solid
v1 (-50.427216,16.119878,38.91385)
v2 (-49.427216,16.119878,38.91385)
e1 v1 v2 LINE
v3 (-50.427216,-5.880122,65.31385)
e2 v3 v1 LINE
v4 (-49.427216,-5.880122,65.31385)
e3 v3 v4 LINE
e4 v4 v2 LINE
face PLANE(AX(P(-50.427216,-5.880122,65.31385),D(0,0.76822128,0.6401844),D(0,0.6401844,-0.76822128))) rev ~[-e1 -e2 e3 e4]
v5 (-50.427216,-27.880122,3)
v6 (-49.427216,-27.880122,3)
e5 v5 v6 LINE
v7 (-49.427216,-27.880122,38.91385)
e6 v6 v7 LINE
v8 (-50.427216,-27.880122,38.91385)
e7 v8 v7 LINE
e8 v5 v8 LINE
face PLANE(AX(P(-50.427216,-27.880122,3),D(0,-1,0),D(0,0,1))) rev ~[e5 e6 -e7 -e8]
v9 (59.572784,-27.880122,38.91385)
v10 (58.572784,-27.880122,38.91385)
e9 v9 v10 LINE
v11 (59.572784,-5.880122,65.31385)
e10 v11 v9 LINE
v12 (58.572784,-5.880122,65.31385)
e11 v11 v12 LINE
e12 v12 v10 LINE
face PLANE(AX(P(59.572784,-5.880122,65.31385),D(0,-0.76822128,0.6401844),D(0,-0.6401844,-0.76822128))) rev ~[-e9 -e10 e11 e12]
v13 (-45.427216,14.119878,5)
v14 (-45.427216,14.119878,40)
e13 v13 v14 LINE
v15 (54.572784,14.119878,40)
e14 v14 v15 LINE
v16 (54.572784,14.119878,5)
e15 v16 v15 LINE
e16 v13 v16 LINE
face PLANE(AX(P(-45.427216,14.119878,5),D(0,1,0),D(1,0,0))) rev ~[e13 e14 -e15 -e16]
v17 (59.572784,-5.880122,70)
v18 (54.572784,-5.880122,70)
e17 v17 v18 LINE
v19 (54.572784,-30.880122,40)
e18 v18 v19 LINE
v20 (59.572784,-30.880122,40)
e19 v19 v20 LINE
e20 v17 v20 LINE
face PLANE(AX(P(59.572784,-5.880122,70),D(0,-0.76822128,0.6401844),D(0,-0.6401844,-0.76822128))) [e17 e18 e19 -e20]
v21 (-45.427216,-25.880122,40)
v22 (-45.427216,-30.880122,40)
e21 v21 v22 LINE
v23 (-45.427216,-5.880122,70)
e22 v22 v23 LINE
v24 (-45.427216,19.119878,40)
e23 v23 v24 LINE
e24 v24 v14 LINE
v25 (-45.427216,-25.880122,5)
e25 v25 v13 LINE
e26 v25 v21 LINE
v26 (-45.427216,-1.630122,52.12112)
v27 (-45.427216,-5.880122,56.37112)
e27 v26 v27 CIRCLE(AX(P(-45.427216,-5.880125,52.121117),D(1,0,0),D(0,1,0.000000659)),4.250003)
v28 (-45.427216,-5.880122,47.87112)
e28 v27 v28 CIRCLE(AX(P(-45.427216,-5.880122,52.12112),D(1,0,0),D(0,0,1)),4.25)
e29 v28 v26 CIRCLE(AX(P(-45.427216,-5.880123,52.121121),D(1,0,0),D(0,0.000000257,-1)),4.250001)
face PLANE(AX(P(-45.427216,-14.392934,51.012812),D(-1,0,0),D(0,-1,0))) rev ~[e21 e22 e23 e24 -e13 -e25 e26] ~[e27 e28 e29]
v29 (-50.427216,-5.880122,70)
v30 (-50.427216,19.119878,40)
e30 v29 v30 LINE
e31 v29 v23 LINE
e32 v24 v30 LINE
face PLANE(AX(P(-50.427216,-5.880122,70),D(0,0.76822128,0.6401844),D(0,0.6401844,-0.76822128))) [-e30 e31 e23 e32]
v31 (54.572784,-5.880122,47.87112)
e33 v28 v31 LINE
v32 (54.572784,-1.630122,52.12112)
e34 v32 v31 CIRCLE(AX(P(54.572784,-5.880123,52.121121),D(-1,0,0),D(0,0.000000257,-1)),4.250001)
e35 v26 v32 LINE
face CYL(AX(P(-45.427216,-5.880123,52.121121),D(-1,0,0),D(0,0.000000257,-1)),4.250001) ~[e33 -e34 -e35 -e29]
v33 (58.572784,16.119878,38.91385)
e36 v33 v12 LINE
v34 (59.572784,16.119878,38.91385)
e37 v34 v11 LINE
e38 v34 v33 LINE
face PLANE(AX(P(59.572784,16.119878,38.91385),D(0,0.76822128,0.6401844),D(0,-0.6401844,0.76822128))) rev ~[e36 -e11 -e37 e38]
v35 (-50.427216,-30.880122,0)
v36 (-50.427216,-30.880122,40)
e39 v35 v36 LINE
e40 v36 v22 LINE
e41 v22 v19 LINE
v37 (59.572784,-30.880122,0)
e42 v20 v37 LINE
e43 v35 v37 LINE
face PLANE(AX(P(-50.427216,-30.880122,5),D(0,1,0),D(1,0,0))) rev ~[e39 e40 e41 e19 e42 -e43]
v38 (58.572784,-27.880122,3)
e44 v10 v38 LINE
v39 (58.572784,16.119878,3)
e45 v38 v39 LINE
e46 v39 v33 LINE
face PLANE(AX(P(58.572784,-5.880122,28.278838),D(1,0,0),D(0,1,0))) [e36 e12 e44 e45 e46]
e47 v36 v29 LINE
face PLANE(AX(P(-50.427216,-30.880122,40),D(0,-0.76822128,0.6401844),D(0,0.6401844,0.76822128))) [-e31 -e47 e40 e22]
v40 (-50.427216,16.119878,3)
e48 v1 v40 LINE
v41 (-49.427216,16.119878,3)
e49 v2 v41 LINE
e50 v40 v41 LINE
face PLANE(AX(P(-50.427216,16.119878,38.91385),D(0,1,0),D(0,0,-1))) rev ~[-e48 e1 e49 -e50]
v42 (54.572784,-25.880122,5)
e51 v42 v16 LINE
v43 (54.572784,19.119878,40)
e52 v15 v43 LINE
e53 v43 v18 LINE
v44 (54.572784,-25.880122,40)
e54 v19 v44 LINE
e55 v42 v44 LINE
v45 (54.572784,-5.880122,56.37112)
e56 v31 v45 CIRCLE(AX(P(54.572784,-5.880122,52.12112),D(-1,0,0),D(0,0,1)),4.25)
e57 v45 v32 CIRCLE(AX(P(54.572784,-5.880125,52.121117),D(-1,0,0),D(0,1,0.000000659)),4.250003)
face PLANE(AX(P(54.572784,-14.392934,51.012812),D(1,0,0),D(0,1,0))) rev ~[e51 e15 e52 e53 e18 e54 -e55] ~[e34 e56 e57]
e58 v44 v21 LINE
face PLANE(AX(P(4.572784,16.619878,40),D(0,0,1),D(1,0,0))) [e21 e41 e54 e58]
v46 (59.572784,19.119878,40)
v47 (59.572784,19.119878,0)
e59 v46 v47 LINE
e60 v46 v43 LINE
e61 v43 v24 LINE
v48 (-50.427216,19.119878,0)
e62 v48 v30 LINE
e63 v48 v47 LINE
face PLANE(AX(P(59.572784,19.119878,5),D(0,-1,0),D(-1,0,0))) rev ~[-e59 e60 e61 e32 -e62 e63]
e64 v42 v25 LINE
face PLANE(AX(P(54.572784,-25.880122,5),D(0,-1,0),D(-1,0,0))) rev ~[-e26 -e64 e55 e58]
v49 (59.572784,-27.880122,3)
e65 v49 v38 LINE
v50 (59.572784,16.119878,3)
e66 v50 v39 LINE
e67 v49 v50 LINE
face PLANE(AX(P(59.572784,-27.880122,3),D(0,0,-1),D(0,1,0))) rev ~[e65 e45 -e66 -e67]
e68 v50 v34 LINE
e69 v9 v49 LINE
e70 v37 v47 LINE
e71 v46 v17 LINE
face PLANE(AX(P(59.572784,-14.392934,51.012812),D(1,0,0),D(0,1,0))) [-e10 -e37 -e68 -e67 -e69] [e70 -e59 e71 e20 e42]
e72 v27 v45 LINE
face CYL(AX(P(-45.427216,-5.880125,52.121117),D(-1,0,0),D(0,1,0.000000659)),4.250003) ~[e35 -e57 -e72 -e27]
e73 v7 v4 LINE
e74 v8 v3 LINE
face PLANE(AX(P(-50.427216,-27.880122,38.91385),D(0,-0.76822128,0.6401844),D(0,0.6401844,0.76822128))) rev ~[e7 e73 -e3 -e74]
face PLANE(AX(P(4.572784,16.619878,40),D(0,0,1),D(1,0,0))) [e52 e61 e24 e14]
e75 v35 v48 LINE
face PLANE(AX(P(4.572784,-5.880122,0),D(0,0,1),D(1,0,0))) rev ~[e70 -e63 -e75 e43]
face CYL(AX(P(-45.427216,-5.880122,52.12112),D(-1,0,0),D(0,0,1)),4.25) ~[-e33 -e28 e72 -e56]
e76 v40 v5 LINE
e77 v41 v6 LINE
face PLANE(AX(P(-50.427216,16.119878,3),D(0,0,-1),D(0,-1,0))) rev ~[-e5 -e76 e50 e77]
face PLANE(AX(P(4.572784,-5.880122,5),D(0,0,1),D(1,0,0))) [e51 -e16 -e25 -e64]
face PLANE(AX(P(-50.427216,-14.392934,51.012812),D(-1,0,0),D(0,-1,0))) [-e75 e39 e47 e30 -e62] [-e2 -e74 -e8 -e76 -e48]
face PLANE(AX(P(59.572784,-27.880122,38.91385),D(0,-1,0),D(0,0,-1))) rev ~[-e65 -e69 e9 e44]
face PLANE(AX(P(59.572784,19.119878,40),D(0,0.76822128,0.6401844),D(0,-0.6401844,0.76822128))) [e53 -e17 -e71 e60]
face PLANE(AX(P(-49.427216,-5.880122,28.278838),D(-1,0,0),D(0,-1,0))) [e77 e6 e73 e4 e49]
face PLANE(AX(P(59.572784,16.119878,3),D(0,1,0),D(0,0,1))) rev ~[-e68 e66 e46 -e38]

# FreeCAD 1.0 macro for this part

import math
import FreeCAD as App
import Part
import Sketcher
from FreeCAD import Vector

doc = App.newDocument("Part")
body = doc.addObject("PartDesign::Body", "Body")

# Sketch on XY plane
sketch1 = body.newObject("Sketcher::SketchObject", "Sketch")
sketch1.AttachmentSupport = (doc.getObject("XY_Plane"), [""])
sketch1.MapMode = "FlatFace"
sketch1.addGeometry([
    Part.LineSegment(Vector(-50, 19, 0), Vector(-50, -31, 0)),
    Part.LineSegment(Vector(-50, -31, 0), Vector(60, -31, 0)),
    Part.LineSegment(Vector(60, -31, 0), Vector(60, 19, 0)),
    Part.LineSegment(Vector(60, 19, 0), Vector(-50, 19, 0)),
], False)
sketch1.addConstraint([
    Sketcher.Constraint("Coincident", 0, 2, 1, 1),
    Sketcher.Constraint("Coincident", 1, 2, 2, 1),
    Sketcher.Constraint("Coincident", 2, 2, 3, 1),
    Sketcher.Constraint("Coincident", 3, 2, 0, 1),
    Sketcher.Constraint("Vertical", 0),
    Sketcher.Constraint("Horizontal", 1),
    Sketcher.Constraint("Vertical", 2),
    Sketcher.Constraint("Horizontal", 3),
    Sketcher.Constraint("DistanceX", 1, 1, 1, 2, 110.0),
    Sketcher.Constraint("DistanceY", 0, 2, 0, 1, 50.0),
    Sketcher.Constraint("DistanceY", 0, 2, -1, 1, 30.880122),
    Sketcher.Constraint("DistanceX", 0, 2, -1, 1, 50.427216),
])
pad1 = body.newObject("PartDesign::Pad", "Pad")
pad1.Profile = sketch1
pad1.Length = 5

# Sketch on XY plane
sketch2 = body.newObject("Sketcher::SketchObject", "Sketch001")
sketch2.AttachmentSupport = (doc.getObject("XY_Plane"), [""])
sketch2.MapMode = "FlatFace"
sketch2.AttachmentOffset = App.Placement(Vector(0, 0, 5), App.Rotation())
sketch2.addGeometry([
    Part.LineSegment(Vector(60, 19, 0), Vector(-50, 19, 0)),  # 0
    Part.LineSegment(Vector(-50, 19, 0), Vector(-50, -31, 0)),  # 1
    Part.LineSegment(Vector(-50, -31, 0), Vector(60, -31, 0)),  # 2
    Part.LineSegment(Vector(60, -31, 0), Vector(60, 19, 0)),  # 3
    Part.LineSegment(Vector(-45, -26, 0), Vector(-45, 14, 0)),  # 4
    Part.LineSegment(Vector(-45, 14, 0), Vector(55, 14, 0)),  # 5
    Part.LineSegment(Vector(55, 14, 0), Vector(55, -26, 0)),  # 6
    Part.LineSegment(Vector(55, -26, 0), Vector(-45, -26, 0)),  # 7
], False)
sketch2.addConstraint([
    Sketcher.Constraint("Coincident", 0, 2, 1, 1),
    Sketcher.Constraint("Coincident", 1, 2, 2, 1),
    Sketcher.Constraint("Coincident", 2, 2, 3, 1),
    Sketcher.Constraint("Coincident", 3, 2, 0, 1),
    Sketcher.Constraint("Coincident", 4, 2, 5, 1),
    Sketcher.Constraint("Coincident", 5, 2, 6, 1),
    Sketcher.Constraint("Coincident", 6, 2, 7, 1),
    Sketcher.Constraint("Coincident", 7, 2, 4, 1),
    Sketcher.Constraint("Horizontal", 0),
    Sketcher.Constraint("Vertical", 1),
    Sketcher.Constraint("Horizontal", 2),
    Sketcher.Constraint("Vertical", 3),
    Sketcher.Constraint("Vertical", 4),
    Sketcher.Constraint("Horizontal", 5),
    Sketcher.Constraint("Vertical", 6),
    Sketcher.Constraint("Horizontal", 7),
    Sketcher.Constraint("DistanceX", 0, 2, 0, 1, 110.0),
    Sketcher.Constraint("DistanceX", 5, 1, 5, 2, 100.0),
    Sketcher.Constraint("DistanceY", 1, 2, 1, 1, 50.0),
    Sketcher.Constraint("DistanceY", 4, 1, 4, 2, 40.0),
    Sketcher.Constraint("DistanceX", 0, 2, 4, 2, 5.0),
    Sketcher.Constraint("DistanceY", 4, 2, 0, 2, 5.0),
    Sketcher.Constraint("DistanceY", -1, 1, 0, 2, 19.119878),
    Sketcher.Constraint("DistanceX", 0, 2, -1, 1, 50.427216),
])
pad2 = body.newObject("PartDesign::Pad", "Pad001")
pad2.Profile = sketch2
pad2.Length = 35

# Sketch on YZ plane
sketch3 = body.newObject("Sketcher::SketchObject", "Sketch002")
sketch3.AttachmentSupport = (doc.getObject("YZ_Plane"), [""])
sketch3.MapMode = "FlatFace"
sketch3.AttachmentOffset = App.Placement(Vector(0, 0, -50.427216), App.Rotation())
sketch3.addGeometry([
    Part.LineSegment(Vector(-31, 40, 0), Vector(-6, 70, 0)),
    Part.LineSegment(Vector(-6, 70, 0), Vector(19, 40, 0)),
    Part.LineSegment(Vector(19, 40, 0), Vector(-31, 40, 0)),
], False)
sketch3.addConstraint([
    Sketcher.Constraint("Coincident", 0, 2, 1, 1),
    Sketcher.Constraint("Coincident", 1, 2, 2, 1),
    Sketcher.Constraint("Coincident", 2, 2, 0, 1),
    Sketcher.Constraint("Horizontal", 2),
    Sketcher.Constraint("Equal", 0, 1),
    Sketcher.Constraint("DistanceX", 2, 2, 2, 1, 50.0),
    Sketcher.Constraint("DistanceY", -1, 1, 0, 2, 70.0),
    Sketcher.Constraint("DistanceY", -1, 1, 1, 2, 40.0),
    Sketcher.Constraint("DistanceX", -1, 1, 1, 2, 19.119878),
])
pad3 = body.newObject("PartDesign::Pad", "Pad002")
pad3.Profile = sketch3
pad3.Length = 5

# Sketch on YZ plane
sketch4 = body.newObject("Sketcher::SketchObject", "Sketch003")
sketch4.AttachmentSupport = (doc.getObject("YZ_Plane"), [""])
sketch4.MapMode = "FlatFace"
sketch4.AttachmentOffset = App.Placement(Vector(0, 0, 59.572784), App.Rotation())
sketch4.addGeometry([
    Part.LineSegment(Vector(-31, 40, 0), Vector(19, 40, 0)),
    Part.LineSegment(Vector(19, 40, 0), Vector(-6, 70, 0)),
    Part.LineSegment(Vector(-6, 70, 0), Vector(-31, 40, 0)),
], False)
sketch4.addConstraint([
    Sketcher.Constraint("Coincident", 0, 2, 1, 1),
    Sketcher.Constraint("Coincident", 1, 2, 2, 1),
    Sketcher.Constraint("Coincident", 2, 2, 0, 1),
    Sketcher.Constraint("Horizontal", 0),
    Sketcher.Constraint("Equal", 1, 2),
    Sketcher.Constraint("DistanceX", 0, 1, 0, 2, 50.0),
    Sketcher.Constraint("DistanceY", -1, 1, 0, 2, 40.0),
    Sketcher.Constraint("DistanceY", -1, 1, 1, 2, 70.0),
    Sketcher.Constraint("DistanceX", -1, 1, 0, 2, 19.119878),
])
pad4 = body.newObject("PartDesign::Pad", "Pad003")
pad4.Profile = sketch4
pad4.Length = 5
pad4.Reversed = True

# Sketch on YZ plane
sketch5 = body.newObject("Sketcher::SketchObject", "Sketch004")
sketch5.AttachmentSupport = (doc.getObject("YZ_Plane"), [""])
sketch5.MapMode = "FlatFace"
sketch5.AttachmentOffset = App.Placement(Vector(0, 0, -45.427216), App.Rotation())
sketch5.addGeometry([
    Part.ArcOfCircle(Part.Circle(Vector(-5.9, 52.1, 0), Vector(0, 0, 1), 4.3), math.radians(0), math.radians(90)),
    Part.ArcOfCircle(Part.Circle(Vector(-5.9, 52.1, 0), Vector(0, 0, 1), 4.2), math.radians(90), math.radians(270)),
    Part.ArcOfCircle(Part.Circle(Vector(-5.9, 52.1, 0), Vector(0, 0, 1), 4.3), math.radians(-90), math.radians(0)),
], False)
sketch5.addConstraint([
    Sketcher.Constraint("Tangent", 0, 2, 1, 1),
    Sketcher.Constraint("Tangent", 1, 2, 2, 1),
    Sketcher.Constraint("Tangent", 2, 2, 0, 1),
    Sketcher.Constraint("Horizontal", 1, 3, 2, 2),
    Sketcher.Constraint("Vertical", 2, 3, 0, 2),
    Sketcher.Constraint("Vertical", 0, 2, 1, 2),
    Sketcher.Constraint("Radius", 1, 4.25),
    Sketcher.Constraint("DistanceY", -1, 1, 1, 3, 52.12112),
    Sketcher.Constraint("DistanceX", 0, 3, -1, 1, 5.880125),
])
pad5 = body.newObject("PartDesign::Pad", "Pad004")
pad5.Profile = sketch5
pad5.Length = 101

# Sketch on YZ plane
sketch6 = body.newObject("Sketcher::SketchObject", "Sketch005")
sketch6.AttachmentSupport = (doc.getObject("YZ_Plane"), [""])
sketch6.MapMode = "FlatFace"
sketch6.AttachmentOffset = App.Placement(Vector(0, 0, 59.572784), App.Rotation())
sketch6.addGeometry([
    Part.LineSegment(Vector(-28, 39, 0), Vector(-28, 3, 0)),  # 0
    Part.LineSegment(Vector(-28, 3, 0), Vector(16, 3, 0)),  # 1
    Part.LineSegment(Vector(16, 3, 0), Vector(16, 39, 0)),  # 2
    Part.LineSegment(Vector(16, 39, 0), Vector(-6, 65, 0)),  # 3
    Part.LineSegment(Vector(-6, 65, 0), Vector(-28, 39, 0)),  # 4
], False)
sketch6.addConstraint([
    Sketcher.Constraint("Coincident", 0, 2, 1, 1),
    Sketcher.Constraint("Coincident", 1, 2, 2, 1),
    Sketcher.Constraint("Coincident", 2, 2, 3, 1),
    Sketcher.Constraint("Coincident", 3, 2, 4, 1),
    Sketcher.Constraint("Coincident", 4, 2, 0, 1),
    Sketcher.Constraint("Vertical", 0),
    Sketcher.Constraint("Horizontal", 1),
    Sketcher.Constraint("Vertical", 2),
    Sketcher.Constraint("Horizontal", 2, 2, 4, 2),
    Sketcher.Constraint("Equal", 3, 4),
    Sketcher.Constraint("DistanceX", 1, 1, 1, 2, 44.0),
    Sketcher.Constraint("DistanceY", -1, 1, 0, 2, 3.0),
    Sketcher.Constraint("DistanceY", 2, 2, 3, 2, 26.4),
    Sketcher.Constraint("DistanceY", 0, 2, 0, 1, 35.91385),
    Sketcher.Constraint("DistanceX", 0, 2, -1, 1, 27.880122),
])
pocket1 = body.newObject("PartDesign::Pocket", "Pocket")
pocket1.Profile = sketch6
pocket1.Length = 1

# Sketch on YZ plane
sketch7 = body.newObject("Sketcher::SketchObject", "Sketch006")
sketch7.AttachmentSupport = (doc.getObject("YZ_Plane"), [""])
sketch7.MapMode = "FlatFace"
sketch7.AttachmentOffset = App.Placement(Vector(0, 0, -50.427216), App.Rotation())
sketch7.addGeometry([
    Part.LineSegment(Vector(16, 39, 0), Vector(16, 3, 0)),  # 0
    Part.LineSegment(Vector(16, 3, 0), Vector(-28, 3, 0)),  # 1
    Part.LineSegment(Vector(-28, 3, 0), Vector(-28, 39, 0)),  # 2
    Part.LineSegment(Vector(-28, 39, 0), Vector(-6, 65, 0)),  # 3
    Part.LineSegment(Vector(-6, 65, 0), Vector(16, 39, 0)),  # 4
], False)
sketch7.addConstraint([
    Sketcher.Constraint("Coincident", 0, 2, 1, 1),
    Sketcher.Constraint("Coincident", 1, 2, 2, 1),
    Sketcher.Constraint("Coincident", 2, 2, 3, 1),
    Sketcher.Constraint("Coincident", 3, 2, 4, 1),
    Sketcher.Constraint("Coincident", 4, 2, 0, 1),
    Sketcher.Constraint("Vertical", 0),
    Sketcher.Constraint("Horizontal", 1),
    Sketcher.Constraint("Vertical", 2),
    Sketcher.Constraint("Horizontal", 2, 2, 4, 2),
    Sketcher.Constraint("Equal", 3, 4),
    Sketcher.Constraint("DistanceX", 1, 2, 1, 1, 44.0),
    Sketcher.Constraint("DistanceY", -1, 1, 0, 2, 3.0),
    Sketcher.Constraint("DistanceY", 2, 2, 3, 2, 26.4),
    Sketcher.Constraint("DistanceY", 0, 2, 0, 1, 35.91385),
    Sketcher.Constraint("DistanceX", -1, 1, 0, 2, 16.119878),
])
pocket2 = body.newObject("PartDesign::Pocket", "Pocket001")
pocket2.Profile = sketch7
pocket2.Length = 1
pocket2.Reversed = True

doc.recompute()
